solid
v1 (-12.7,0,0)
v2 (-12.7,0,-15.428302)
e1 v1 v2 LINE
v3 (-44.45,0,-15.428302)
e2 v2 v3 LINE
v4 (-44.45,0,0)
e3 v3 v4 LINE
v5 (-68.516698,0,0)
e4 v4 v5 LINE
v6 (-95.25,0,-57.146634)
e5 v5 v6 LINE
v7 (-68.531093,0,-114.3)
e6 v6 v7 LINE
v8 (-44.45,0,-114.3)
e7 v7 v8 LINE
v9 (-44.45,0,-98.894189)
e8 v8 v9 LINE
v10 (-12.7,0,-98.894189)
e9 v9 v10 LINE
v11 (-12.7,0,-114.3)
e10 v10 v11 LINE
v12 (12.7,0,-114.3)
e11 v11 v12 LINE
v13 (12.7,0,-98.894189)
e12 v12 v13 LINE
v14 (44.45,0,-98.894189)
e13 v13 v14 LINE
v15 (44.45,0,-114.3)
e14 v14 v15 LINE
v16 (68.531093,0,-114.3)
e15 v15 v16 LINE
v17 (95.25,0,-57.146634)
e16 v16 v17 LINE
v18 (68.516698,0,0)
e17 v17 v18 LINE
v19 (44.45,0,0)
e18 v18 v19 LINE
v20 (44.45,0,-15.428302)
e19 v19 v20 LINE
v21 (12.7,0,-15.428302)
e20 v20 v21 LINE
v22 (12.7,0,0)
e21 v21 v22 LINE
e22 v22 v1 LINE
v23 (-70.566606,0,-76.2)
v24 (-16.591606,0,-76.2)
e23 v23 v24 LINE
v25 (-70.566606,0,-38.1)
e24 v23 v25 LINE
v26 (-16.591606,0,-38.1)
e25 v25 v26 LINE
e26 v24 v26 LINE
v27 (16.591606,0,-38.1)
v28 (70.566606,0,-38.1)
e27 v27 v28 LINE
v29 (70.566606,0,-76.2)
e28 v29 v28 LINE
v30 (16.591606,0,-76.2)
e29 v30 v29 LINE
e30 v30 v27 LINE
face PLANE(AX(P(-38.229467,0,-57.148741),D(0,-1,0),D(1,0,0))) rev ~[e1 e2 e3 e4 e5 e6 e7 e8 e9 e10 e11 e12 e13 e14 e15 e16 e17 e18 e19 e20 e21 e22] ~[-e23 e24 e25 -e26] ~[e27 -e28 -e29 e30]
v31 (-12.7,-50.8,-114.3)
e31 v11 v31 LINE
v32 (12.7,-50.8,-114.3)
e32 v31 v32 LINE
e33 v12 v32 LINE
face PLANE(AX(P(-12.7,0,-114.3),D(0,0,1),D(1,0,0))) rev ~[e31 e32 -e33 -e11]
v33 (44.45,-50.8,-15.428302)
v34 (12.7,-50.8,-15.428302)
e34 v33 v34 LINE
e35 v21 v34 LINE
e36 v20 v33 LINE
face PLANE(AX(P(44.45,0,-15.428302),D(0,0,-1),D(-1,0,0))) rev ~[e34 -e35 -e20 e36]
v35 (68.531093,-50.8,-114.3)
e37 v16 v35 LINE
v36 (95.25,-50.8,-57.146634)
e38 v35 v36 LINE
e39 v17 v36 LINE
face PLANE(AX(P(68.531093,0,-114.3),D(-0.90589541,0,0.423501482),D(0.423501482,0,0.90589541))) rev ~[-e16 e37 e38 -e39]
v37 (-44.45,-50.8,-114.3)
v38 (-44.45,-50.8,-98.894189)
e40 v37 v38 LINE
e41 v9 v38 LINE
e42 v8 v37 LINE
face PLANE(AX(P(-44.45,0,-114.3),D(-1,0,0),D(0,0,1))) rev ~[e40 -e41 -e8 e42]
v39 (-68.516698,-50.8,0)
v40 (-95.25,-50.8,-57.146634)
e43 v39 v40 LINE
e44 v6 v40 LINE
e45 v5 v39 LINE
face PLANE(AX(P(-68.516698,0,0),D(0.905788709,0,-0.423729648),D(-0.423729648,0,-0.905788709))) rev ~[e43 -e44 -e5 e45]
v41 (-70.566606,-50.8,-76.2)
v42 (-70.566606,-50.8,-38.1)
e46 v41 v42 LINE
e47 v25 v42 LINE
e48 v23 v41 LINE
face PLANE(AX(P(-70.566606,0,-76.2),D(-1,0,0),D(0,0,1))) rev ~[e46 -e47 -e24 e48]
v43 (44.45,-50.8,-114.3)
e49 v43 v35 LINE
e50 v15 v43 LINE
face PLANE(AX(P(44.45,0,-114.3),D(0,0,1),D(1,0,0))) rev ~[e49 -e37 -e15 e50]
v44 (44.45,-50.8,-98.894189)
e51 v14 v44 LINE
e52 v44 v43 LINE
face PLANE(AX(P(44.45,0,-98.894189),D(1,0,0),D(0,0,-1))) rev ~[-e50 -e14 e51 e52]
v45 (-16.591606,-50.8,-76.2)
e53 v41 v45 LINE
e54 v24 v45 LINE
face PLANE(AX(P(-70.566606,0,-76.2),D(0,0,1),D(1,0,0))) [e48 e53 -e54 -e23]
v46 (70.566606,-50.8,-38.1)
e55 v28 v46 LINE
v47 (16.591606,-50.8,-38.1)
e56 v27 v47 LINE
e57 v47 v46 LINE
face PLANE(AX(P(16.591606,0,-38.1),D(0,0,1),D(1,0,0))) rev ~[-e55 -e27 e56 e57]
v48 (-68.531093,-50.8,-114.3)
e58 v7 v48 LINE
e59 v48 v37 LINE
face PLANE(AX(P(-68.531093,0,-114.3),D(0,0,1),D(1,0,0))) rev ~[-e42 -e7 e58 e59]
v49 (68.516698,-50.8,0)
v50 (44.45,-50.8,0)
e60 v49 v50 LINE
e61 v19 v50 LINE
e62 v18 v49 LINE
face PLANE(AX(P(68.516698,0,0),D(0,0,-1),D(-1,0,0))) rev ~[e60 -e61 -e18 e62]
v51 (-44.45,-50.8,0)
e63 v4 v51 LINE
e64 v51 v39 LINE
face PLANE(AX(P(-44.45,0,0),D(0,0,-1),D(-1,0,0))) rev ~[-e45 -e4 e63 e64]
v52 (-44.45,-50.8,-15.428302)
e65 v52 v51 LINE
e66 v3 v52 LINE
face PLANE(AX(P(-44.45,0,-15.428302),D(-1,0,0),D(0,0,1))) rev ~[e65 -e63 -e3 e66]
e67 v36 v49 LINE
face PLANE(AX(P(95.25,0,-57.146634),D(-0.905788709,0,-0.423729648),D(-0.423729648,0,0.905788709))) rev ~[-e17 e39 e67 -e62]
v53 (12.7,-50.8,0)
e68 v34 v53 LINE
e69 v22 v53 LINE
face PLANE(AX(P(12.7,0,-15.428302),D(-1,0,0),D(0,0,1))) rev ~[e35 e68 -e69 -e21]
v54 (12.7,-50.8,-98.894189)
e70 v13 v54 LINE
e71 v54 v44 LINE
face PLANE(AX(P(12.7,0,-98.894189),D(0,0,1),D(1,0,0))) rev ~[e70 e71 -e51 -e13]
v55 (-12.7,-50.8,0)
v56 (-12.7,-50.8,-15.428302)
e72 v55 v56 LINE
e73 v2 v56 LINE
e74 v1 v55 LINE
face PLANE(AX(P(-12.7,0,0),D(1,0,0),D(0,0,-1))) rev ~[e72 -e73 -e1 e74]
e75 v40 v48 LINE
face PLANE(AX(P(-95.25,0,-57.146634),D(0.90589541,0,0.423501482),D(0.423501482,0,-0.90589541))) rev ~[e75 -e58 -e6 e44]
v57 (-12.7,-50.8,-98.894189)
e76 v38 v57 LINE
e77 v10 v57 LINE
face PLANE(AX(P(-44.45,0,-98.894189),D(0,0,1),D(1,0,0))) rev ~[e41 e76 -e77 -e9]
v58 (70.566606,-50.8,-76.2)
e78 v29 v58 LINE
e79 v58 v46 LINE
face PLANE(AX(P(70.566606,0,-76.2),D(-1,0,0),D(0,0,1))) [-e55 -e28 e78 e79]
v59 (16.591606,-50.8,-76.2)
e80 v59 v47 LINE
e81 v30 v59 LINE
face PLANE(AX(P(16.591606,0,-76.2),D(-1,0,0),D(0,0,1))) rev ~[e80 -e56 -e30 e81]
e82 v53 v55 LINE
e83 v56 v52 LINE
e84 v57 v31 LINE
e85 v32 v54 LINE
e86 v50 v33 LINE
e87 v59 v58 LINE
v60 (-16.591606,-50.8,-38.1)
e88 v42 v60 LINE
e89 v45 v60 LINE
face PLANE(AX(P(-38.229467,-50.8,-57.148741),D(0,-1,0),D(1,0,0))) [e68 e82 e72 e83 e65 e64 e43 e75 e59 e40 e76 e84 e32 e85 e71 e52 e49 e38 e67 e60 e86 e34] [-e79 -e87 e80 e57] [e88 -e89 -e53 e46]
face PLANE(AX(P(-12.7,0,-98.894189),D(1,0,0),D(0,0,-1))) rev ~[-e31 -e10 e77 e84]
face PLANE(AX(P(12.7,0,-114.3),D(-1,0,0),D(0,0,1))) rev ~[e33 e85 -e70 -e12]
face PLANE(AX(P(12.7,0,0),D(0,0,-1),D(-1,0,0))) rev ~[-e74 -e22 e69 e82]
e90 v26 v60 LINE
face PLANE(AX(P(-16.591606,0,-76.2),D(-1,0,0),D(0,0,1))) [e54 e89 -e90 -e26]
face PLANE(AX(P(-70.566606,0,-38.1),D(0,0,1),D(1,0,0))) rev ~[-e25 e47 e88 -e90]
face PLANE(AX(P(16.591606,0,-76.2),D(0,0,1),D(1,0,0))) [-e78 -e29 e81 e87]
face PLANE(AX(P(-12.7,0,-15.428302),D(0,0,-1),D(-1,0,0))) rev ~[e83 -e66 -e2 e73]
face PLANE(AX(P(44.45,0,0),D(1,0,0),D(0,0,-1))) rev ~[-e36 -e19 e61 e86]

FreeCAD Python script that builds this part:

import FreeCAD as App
import Part
import Sketcher
Q = App.Units.Quantity

doc = App.newDocument("Part")
params = doc.addObject("Spreadsheet::Sheet", "Params")
for row, (alias, value) in enumerate([
    ("sketch1_width", "1 in"),
    ("sketch1_height", "1.5 in"),
    ("sketch1_width2", "1.25 in"),
    ("sketch1_width3", "2.125 in"),
    ("pad1_length", "2 in"),
], start=1):
    params.set(f"A{row}", alias)
    params.set(f"B{row}", "=" + value)
    params.setAlias(f"B{row}", alias)

body = doc.addObject("PartDesign::Body", "Body")

sketch1 = body.newObject("Sketcher::SketchObject", "Sketch")
sketch1.AttachmentSupport = (doc.getObject("XZ_Plane"), [""])
sketch1.MapMode = "FlatFace"
sketch1.addGeometry([
    Part.LineSegment(App.Vector(-12.7, -98.894189, 0), App.Vector(-12.7, -114.3, 0)),
    Part.LineSegment(App.Vector(-12.7, -114.3, 0), App.Vector(12.7, -114.3, 0)),
    Part.LineSegment(App.Vector(12.7, -114.3, 0), App.Vector(12.7, -98.894189, 0)),
    Part.LineSegment(App.Vector(12.7, -98.894189, 0), App.Vector(44.45, -98.894189, 0)),
    Part.LineSegment(App.Vector(44.45, -98.894189, 0), App.Vector(44.45, -114.3, 0)),
    Part.LineSegment(App.Vector(44.45, -114.3, 0), App.Vector(68.531093, -114.3, 0)),
    Part.LineSegment(App.Vector(68.531093, -114.3, 0), App.Vector(95.25, -57.146634, 0)),
    Part.LineSegment(App.Vector(95.25, -57.146634, 0), App.Vector(68.516698, 0, 0)),
    Part.LineSegment(App.Vector(68.516698, 0, 0), App.Vector(44.45, 0, 0)),
    Part.LineSegment(App.Vector(44.45, 0, 0), App.Vector(44.45, -15.428302, 0)),
    Part.LineSegment(App.Vector(44.45, -15.428302, 0), App.Vector(12.7, -15.428302, 0)),
    Part.LineSegment(App.Vector(12.7, -15.428302, 0), App.Vector(12.7, 0, 0)),
    Part.LineSegment(App.Vector(12.7, 0, 0), App.Vector(-12.7, 0, 0)),
    Part.LineSegment(App.Vector(-12.7, 0, 0), App.Vector(-12.7, -15.428302, 0)),
    Part.LineSegment(App.Vector(-12.7, -15.428302, 0), App.Vector(-44.45, -15.428302, 0)),
    Part.LineSegment(App.Vector(-44.45, -15.428302, 0), App.Vector(-44.45, 0, 0)),
    Part.LineSegment(App.Vector(-44.45, 0, 0), App.Vector(-68.516698, 0, 0)),
    Part.LineSegment(App.Vector(-68.516698, 0, 0), App.Vector(-95.25, -57.146634, 0)),
    Part.LineSegment(App.Vector(-95.25, -57.146634, 0), App.Vector(-68.531093, -114.3, 0)),
    Part.LineSegment(App.Vector(-68.531093, -114.3, 0), App.Vector(-44.45, -114.3, 0)),
    Part.LineSegment(App.Vector(-44.45, -114.3, 0), App.Vector(-44.45, -98.894189, 0)),
    Part.LineSegment(App.Vector(-44.45, -98.894189, 0), App.Vector(-12.7, -98.894189, 0)),
    Part.LineSegment(App.Vector(-16.591606, -76.2, 0), App.Vector(-70.566606, -76.2, 0)),
    Part.LineSegment(App.Vector(-70.566606, -76.2, 0), App.Vector(-70.566606, -38.1, 0)),
    Part.LineSegment(App.Vector(-70.566606, -38.1, 0), App.Vector(-16.591606, -38.1, 0)),
    Part.LineSegment(App.Vector(-16.591606, -38.1, 0), App.Vector(-16.591606, -76.2, 0)),
    Part.LineSegment(App.Vector(16.591606, -38.1, 0), App.Vector(70.566606, -38.1, 0)),
    Part.LineSegment(App.Vector(70.566606, -38.1, 0), App.Vector(70.566606, -76.2, 0)),
    Part.LineSegment(App.Vector(70.566606, -76.2, 0), App.Vector(16.591606, -76.2, 0)),
    Part.LineSegment(App.Vector(16.591606, -76.2, 0), App.Vector(16.591606, -38.1, 0)),
], False)
sketch1.addConstraint([
    Sketcher.Constraint("Coincident", 0, 2, 1, 1),
    Sketcher.Constraint("Coincident", 1, 2, 2, 1),
    Sketcher.Constraint("Coincident", 2, 2, 3, 1),
    Sketcher.Constraint("Coincident", 3, 2, 4, 1),
    Sketcher.Constraint("Coincident", 4, 2, 5, 1),
    Sketcher.Constraint("Coincident", 5, 2, 6, 1),
    Sketcher.Constraint("Coincident", 6, 2, 7, 1),
    Sketcher.Constraint("Coincident", 7, 2, 8, 1),
    Sketcher.Constraint("Coincident", 8, 2, 9, 1),
    Sketcher.Constraint("Coincident", 9, 2, 10, 1),
    Sketcher.Constraint("Coincident", 10, 2, 11, 1),
    Sketcher.Constraint("Coincident", 11, 2, 12, 1),
    Sketcher.Constraint("Coincident", 12, 2, 13, 1),
    Sketcher.Constraint("Coincident", 13, 2, 14, 1),
    Sketcher.Constraint("Coincident", 14, 2, 15, 1),
    Sketcher.Constraint("Coincident", 15, 2, 16, 1),
    Sketcher.Constraint("Coincident", 16, 2, 17, 1),
    Sketcher.Constraint("Coincident", 17, 2, 18, 1),
    Sketcher.Constraint("Coincident", 18, 2, 19, 1),
    Sketcher.Constraint("Coincident", 19, 2, 20, 1),
    Sketcher.Constraint("Coincident", 20, 2, 21, 1),
    Sketcher.Constraint("Coincident", 21, 2, 0, 1),
    Sketcher.Constraint("Coincident", 22, 2, 23, 1),
    Sketcher.Constraint("Coincident", 23, 2, 24, 1),
    Sketcher.Constraint("Coincident", 24, 2, 25, 1),
    Sketcher.Constraint("Coincident", 25, 2, 22, 1),
    Sketcher.Constraint("Coincident", 26, 2, 27, 1),
    Sketcher.Constraint("Coincident", 27, 2, 28, 1),
    Sketcher.Constraint("Coincident", 28, 2, 29, 1),
    Sketcher.Constraint("Coincident", 29, 2, 26, 1),
    Sketcher.Constraint("Vertical", 0),
    Sketcher.Constraint("Horizontal", 1),
    Sketcher.Constraint("Vertical", 2),
    Sketcher.Constraint("Horizontal", 3),
    Sketcher.Constraint("Vertical", 4),
    Sketcher.Constraint("Horizontal", 5),
    Sketcher.Constraint("Horizontal", 8),
    Sketcher.Constraint("Vertical", 9),
    Sketcher.Constraint("Horizontal", 10),
    Sketcher.Constraint("Vertical", 11),
    Sketcher.Constraint("Horizontal", 12),
    Sketcher.Constraint("Vertical", 13),
    Sketcher.Constraint("Horizontal", 14),
    Sketcher.Constraint("Vertical", 15),
    Sketcher.Constraint("Horizontal", 16),
    Sketcher.Constraint("Horizontal", 19),
    Sketcher.Constraint("Vertical", 20),
    Sketcher.Constraint("Horizontal", 21),
    Sketcher.Constraint("Horizontal", 22),
    Sketcher.Constraint("Vertical", 23),
    Sketcher.Constraint("Horizontal", 24),
    Sketcher.Constraint("Vertical", 25),
    Sketcher.Constraint("Horizontal", 26),
    Sketcher.Constraint("Vertical", 27),
    Sketcher.Constraint("Horizontal", 28),
    Sketcher.Constraint("Vertical", 29),
    Sketcher.Constraint("Symmetric", 11, 2, 12, 2, -1, 1),
    Sketcher.Constraint("Symmetric", 8, 2, 15, 2, -1, 1),
    Sketcher.Constraint("Symmetric", 7, 2, 16, 2, -2),
    Sketcher.Constraint("Symmetric", 6, 2, 17, 2, -2),
    Sketcher.Constraint("Symmetric", 5, 2, 18, 2, -2),
    Sketcher.Constraint("Symmetric", 3, 2, 20, 2, -2),
    Sketcher.Constraint("Symmetric", 23, 2, 26, 2, -2),
    Sketcher.Constraint("Symmetric", 25, 2, 28, 2, -2),
    Sketcher.Constraint("Horizontal", 1, 2, 4, 2),
    Sketcher.Constraint("Horizontal", 10, 2, 13, 2),
    Sketcher.Constraint("Vertical", 4, 2, 8, 2),
    Sketcher.Constraint("Vertical", 2, 2, 10, 2),
    Sketcher.Constraint("Vertical", 0, 2, 12, 2),
    Sketcher.Constraint("Equal", 6, 7),
    Sketcher.Constraint("DistanceX", 1, 1, 1, 2, Q("1 in")),
    Sketcher.Constraint("DistanceY", 23, 1, 23, 2, Q("1.5 in")),
    Sketcher.Constraint("DistanceY", 22, 2, -1, 1, Q("3 in")),
    Sketcher.Constraint("DistanceX", 3, 2, 6, 2, Q("2 in")),
    Sketcher.Constraint("DistanceX", 3, 1, 3, 2, Q("1.25 in")),
    Sketcher.Constraint("DistanceY", 0, 2, -1, 1, Q("4.5 in")),
    Sketcher.Constraint("DistanceX", 22, 2, 22, 1, Q("2.125 in")),
    Sketcher.Constraint("DistanceX", 8, 2, 8, 1, Q("24.066698 mm")),
    Sketcher.Constraint("DistanceY", 0, 2, 0, 1, Q("15.405811 mm")),
    Sketcher.Constraint("Distance", 6, Q("63.090469 mm")),
    Sketcher.Constraint("DistanceY", 9, 2, 9, 1, Q("15.428302 mm")),
    Sketcher.Constraint("DistanceX", 25, 2, 28, 2, Q("33.183212 mm")),
])
sketch1.setExpression("Constraints[70]", "Params.sketch1_width")
sketch1.setExpression("Constraints[71]", "Params.sketch1_height")
sketch1.setExpression("Constraints[74]", "Params.sketch1_width2")
sketch1.setExpression("Constraints[76]", "Params.sketch1_width3")
pad1 = body.newObject("PartDesign::Pad", "Pad")
pad1.Profile = sketch1
pad1.setExpression("Length", "Params.pad1_length")

doc.recompute()
